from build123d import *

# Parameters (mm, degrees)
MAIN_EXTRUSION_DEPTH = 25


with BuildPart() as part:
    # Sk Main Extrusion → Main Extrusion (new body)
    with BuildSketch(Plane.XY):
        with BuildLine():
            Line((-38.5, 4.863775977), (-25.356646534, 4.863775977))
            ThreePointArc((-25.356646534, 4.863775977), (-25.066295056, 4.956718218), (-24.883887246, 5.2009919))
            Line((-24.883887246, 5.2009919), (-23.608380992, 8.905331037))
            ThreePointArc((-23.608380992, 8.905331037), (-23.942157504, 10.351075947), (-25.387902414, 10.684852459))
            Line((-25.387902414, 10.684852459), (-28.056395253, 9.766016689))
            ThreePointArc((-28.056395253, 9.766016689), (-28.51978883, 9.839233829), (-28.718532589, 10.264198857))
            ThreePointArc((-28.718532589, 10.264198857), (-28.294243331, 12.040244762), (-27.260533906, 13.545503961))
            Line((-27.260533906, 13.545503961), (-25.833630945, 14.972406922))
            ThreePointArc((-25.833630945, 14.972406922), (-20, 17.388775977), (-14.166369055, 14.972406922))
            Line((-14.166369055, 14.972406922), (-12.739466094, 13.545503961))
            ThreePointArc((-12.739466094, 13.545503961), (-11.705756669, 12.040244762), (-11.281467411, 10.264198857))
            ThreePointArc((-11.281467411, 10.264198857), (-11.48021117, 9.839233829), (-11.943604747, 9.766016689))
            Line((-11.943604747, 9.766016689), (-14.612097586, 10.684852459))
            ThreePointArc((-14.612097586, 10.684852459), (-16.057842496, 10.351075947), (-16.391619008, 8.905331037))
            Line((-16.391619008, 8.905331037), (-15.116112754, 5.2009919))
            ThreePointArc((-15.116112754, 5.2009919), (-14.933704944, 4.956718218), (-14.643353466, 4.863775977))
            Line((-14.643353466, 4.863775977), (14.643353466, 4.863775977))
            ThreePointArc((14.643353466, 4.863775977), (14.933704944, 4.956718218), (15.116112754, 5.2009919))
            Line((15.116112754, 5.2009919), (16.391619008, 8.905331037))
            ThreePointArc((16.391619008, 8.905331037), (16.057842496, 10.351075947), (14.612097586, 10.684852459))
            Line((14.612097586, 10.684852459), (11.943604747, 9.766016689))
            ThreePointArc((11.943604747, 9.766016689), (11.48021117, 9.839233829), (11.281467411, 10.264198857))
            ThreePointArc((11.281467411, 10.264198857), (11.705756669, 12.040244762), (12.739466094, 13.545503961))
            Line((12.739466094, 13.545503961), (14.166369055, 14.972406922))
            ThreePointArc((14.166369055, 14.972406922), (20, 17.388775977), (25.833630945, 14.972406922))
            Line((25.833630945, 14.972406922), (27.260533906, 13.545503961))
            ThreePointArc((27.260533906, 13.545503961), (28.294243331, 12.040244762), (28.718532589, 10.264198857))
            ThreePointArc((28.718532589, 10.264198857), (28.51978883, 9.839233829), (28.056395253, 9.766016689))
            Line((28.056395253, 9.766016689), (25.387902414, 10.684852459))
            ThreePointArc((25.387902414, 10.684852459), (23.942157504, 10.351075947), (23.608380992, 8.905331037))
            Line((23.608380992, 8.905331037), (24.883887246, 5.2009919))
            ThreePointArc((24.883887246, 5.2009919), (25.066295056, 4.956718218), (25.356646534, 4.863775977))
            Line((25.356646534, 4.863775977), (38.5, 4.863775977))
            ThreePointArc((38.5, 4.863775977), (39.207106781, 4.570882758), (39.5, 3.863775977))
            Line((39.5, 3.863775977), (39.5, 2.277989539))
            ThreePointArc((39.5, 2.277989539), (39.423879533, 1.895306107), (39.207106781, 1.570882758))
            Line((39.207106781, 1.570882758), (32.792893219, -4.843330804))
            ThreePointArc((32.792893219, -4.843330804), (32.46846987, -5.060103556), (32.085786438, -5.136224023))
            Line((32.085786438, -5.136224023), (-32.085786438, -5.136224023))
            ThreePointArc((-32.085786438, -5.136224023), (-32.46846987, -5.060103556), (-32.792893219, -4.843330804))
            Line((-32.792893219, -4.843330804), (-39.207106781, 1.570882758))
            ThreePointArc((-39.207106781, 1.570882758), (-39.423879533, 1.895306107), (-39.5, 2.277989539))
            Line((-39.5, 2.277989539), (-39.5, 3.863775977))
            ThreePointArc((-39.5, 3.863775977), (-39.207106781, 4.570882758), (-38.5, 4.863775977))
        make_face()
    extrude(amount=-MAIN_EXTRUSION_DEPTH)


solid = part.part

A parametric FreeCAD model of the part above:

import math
import FreeCAD as App
import Part
import Sketcher

V = App.Vector
Q = App.Units.Quantity

doc = App.newDocument("Part")
body = doc.addObject("PartDesign::Body", "Body")

# Sketch on XY plane
sketch1 = body.newObject("Sketcher::SketchObject", "Sketch")
sketch1.AttachmentSupport = (doc.getObject("XY_Plane"), [""])
sketch1.MapMode = "FlatFace"
sketch1.addGeometry(Part.LineSegment(V(-25.4, 4.9, 0), V(-38.5, 4.9, 0)), False)
sketch1.addGeometry(Part.ArcOfCircle(Part.Circle(V(-38.5, 3.9, 0), V(0, 0, 1), 1), math.radians(90), math.radians(180)), False)
sketch1.addGeometry(Part.LineSegment(V(-39.5, 3.9, 0), V(-39.5, 2.3, 0)), False)
sketch1.addGeometry(Part.ArcOfCircle(Part.Circle(V(-38.5, 2.3, 0), V(0, 0, 1), 1), math.radians(180), math.radians(225)), False)
sketch1.addGeometry(Part.LineSegment(V(-39.2, 1.6, 0), V(-32.8, -4.8, 0)), False)
sketch1.addGeometry(Part.ArcOfCircle(Part.Circle(V(-32.1, -4.1, 0), V(0, 0, 1), 1), math.radians(-135), math.radians(-90)), False)
sketch1.addGeometry(Part.LineSegment(V(-32.1, -5.1, 0), V(32.1, -5.1, 0)), False)
sketch1.addGeometry(Part.ArcOfCircle(Part.Circle(V(32.1, -4.1, 0), V(0, 0, 1), 1), math.radians(-90), math.radians(-45)), False)
sketch1.addGeometry(Part.LineSegment(V(32.8, -4.8, 0), V(39.2, 1.6, 0)), False)
sketch1.addGeometry(Part.ArcOfCircle(Part.Circle(V(38.5, 2.3, 0), V(0, 0, 1), 1), math.radians(-45), math.radians(0)), False)
sketch1.addGeometry(Part.LineSegment(V(39.5, 2.3, 0), V(39.5, 3.9, 0)), False)
sketch1.addGeometry(Part.ArcOfCircle(Part.Circle(V(38.5, 3.9, 0), V(0, 0, 1), 1), math.radians(0), math.radians(90)), False)
sketch1.addGeometry(Part.LineSegment(V(38.5, 4.9, 0), V(25.4, 4.9, 0)), False)
sketch1.addGeometry(Part.ArcOfCircle(Part.Circle(V(25.4, 5.4, 0), V(0, 0, 1), 0.5), math.radians(-161), math.radians(-90)), False)
sketch1.addGeometry(Part.LineSegment(V(24.9, 5.2, 0), V(23.6, 8.9, 0)), False)
sketch1.addGeometry(Part.ArcOfCircle(Part.Circle(V(24.9, 9.4, 0), V(0, 0, 1), 1.4), math.radians(71), math.radians(199)), False)
sketch1.addGeometry(Part.LineSegment(V(25.4, 10.7, 0), V(28.1, 9.8, 0)), False)
sketch1.addGeometry(Part.ArcOfCircle(Part.Circle(V(28.2, 10.2, 0), V(0, 0, 1), 0.5), math.radians(-109), math.radians(3)), False)
sketch1.addGeometry(Part.ArcOfCircle(Part.Circle(V(23.7, 10, 0), V(0, 0, 1), 5), math.radians(3), math.radians(45)), False)
sketch1.addGeometry(Part.LineSegment(V(27.3, 13.5, 0), V(25.8, 15, 0)), False)
sketch1.addGeometry(Part.ArcOfCircle(Part.Circle(V(20, 9.1, 0), V(0, 0, 1), 8.3), math.radians(45), math.radians(135)), False)
sketch1.addGeometry(Part.LineSegment(V(14.2, 15, 0), V(12.7, 13.5, 0)), False)
sketch1.addGeometry(Part.ArcOfCircle(Part.Circle(V(16.3, 10, 0), V(0, 0, 1), 5), math.radians(135), math.radians(177)), False)
sketch1.addGeometry(Part.ArcOfCircle(Part.Circle(V(11.8, 10.2, 0), V(0, 0, 1), 0.5), math.radians(177), math.radians(289)), False)
sketch1.addGeometry(Part.LineSegment(V(11.9, 9.8, 0), V(14.6, 10.7, 0)), False)
sketch1.addGeometry(Part.ArcOfCircle(Part.Circle(V(15.1, 9.4, 0), V(0, 0, 1), 1.4), math.radians(-19), math.radians(109)), False)
sketch1.addGeometry(Part.LineSegment(V(16.4, 8.9, 0), V(15.1, 5.2, 0)), False)
sketch1.addGeometry(Part.ArcOfCircle(Part.Circle(V(14.6, 5.4, 0), V(0, 0, 1), 0.5), math.radians(-90), math.radians(-19)), False)
sketch1.addGeometry(Part.LineSegment(V(14.6, 4.9, 0), V(-14.6, 4.9, 0)), False)
sketch1.addGeometry(Part.ArcOfCircle(Part.Circle(V(-14.6, 5.4, 0), V(0, 0, 1), 0.5), math.radians(-161), math.radians(-90)), False)
sketch1.addGeometry(Part.LineSegment(V(-15.1, 5.2, 0), V(-16.4, 8.9, 0)), False)
sketch1.addGeometry(Part.ArcOfCircle(Part.Circle(V(-15.1, 9.4, 0), V(0, 0, 1), 1.4), math.radians(71), math.radians(199)), False)
sketch1.addGeometry(Part.LineSegment(V(-14.6, 10.7, 0), V(-11.9, 9.8, 0)), False)
sketch1.addGeometry(Part.ArcOfCircle(Part.Circle(V(-11.8, 10.2, 0), V(0, 0, 1), 0.5), math.radians(-109), math.radians(3)), False)
sketch1.addGeometry(Part.ArcOfCircle(Part.Circle(V(-16.3, 10, 0), V(0, 0, 1), 5), math.radians(3), math.radians(45)), False)
sketch1.addGeometry(Part.LineSegment(V(-12.7, 13.5, 0), V(-14.2, 15, 0)), False)
sketch1.addGeometry(Part.ArcOfCircle(Part.Circle(V(-20, 9.1, 0), V(0, 0, 1), 8.3), math.radians(45), math.radians(135)), False)
sketch1.addGeometry(Part.LineSegment(V(-25.8, 15, 0), V(-27.3, 13.5, 0)), False)
sketch1.addGeometry(Part.ArcOfCircle(Part.Circle(V(-23.7, 10, 0), V(0, 0, 1), 5), math.radians(135), math.radians(177)), False)
sketch1.addGeometry(Part.ArcOfCircle(Part.Circle(V(-28.2, 10.2, 0), V(0, 0, 1), 0.5), math.radians(177), math.radians(289)), False)
sketch1.addGeometry(Part.LineSegment(V(-28.1, 9.8, 0), V(-25.4, 10.7, 0)), False)
sketch1.addGeometry(Part.ArcOfCircle(Part.Circle(V(-24.9, 9.4, 0), V(0, 0, 1), 1.4), math.radians(-19), math.radians(109)), False)
sketch1.addGeometry(Part.LineSegment(V(-23.6, 8.9, 0), V(-24.9, 5.2, 0)), False)
sketch1.addGeometry(Part.ArcOfCircle(Part.Circle(V(-25.4, 5.4, 0), V(0, 0, 1), 0.5), math.radians(-90), math.radians(-19)), False)
sketch1.addConstraint(Sketcher.Constraint("Tangent", 0, 2, 1, 1))
sketch1.addConstraint(Sketcher.Constraint("Tangent", 1, 2, 2, 1))
sketch1.addConstraint(Sketcher.Constraint("Tangent", 2, 2, 3, 1))
sketch1.addConstraint(Sketcher.Constraint("Tangent", 3, 2, 4, 1))
sketch1.addConstraint(Sketcher.Constraint("Tangent", 4, 2, 5, 1))
sketch1.addConstraint(Sketcher.Constraint("Tangent", 5, 2, 6, 1))
sketch1.addConstraint(Sketcher.Constraint("Tangent", 6, 2, 7, 1))
sketch1.addConstraint(Sketcher.Constraint("Tangent", 7, 2, 8, 1))
sketch1.addConstraint(Sketcher.Constraint("Tangent", 8, 2, 9, 1))
sketch1.addConstraint(Sketcher.Constraint("Tangent", 9, 2, 10, 1))
sketch1.addConstraint(Sketcher.Constraint("Tangent", 10, 2, 11, 1))
sketch1.addConstraint(Sketcher.Constraint("Tangent", 11, 2, 12, 1))
sketch1.addConstraint(Sketcher.Constraint("Tangent", 12, 2, 13, 2))
sketch1.addConstraint(Sketcher.Constraint("Tangent", 13, 1, 14, 1))
sketch1.addConstraint(Sketcher.Constraint("Tangent", 14, 2, 15, 2))
sketch1.addConstraint(Sketcher.Constraint("Tangent", 15, 1, 16, 1))
sketch1.addConstraint(Sketcher.Constraint("Tangent", 16, 2, 17, 1))
sketch1.addConstraint(Sketcher.Constraint("Tangent", 17, 2, 18, 1))
sketch1.addConstraint(Sketcher.Constraint("Tangent", 18, 2, 19, 1))
sketch1.addConstraint(Sketcher.Constraint("Tangent", 19, 2, 20, 1))
sketch1.addConstraint(Sketcher.Constraint("Tangent", 20, 2, 21, 1))
sketch1.addConstraint(Sketcher.Constraint("Tangent", 21, 2, 22, 1))
sketch1.addConstraint(Sketcher.Constraint("Tangent", 22, 2, 23, 1))
sketch1.addConstraint(Sketcher.Constraint("Tangent", 23, 2, 24, 1))
sketch1.addConstraint(Sketcher.Constraint("Tangent", 24, 2, 25, 2))
sketch1.addConstraint(Sketcher.Constraint("Tangent", 25, 1, 26, 1))
sketch1.addConstraint(Sketcher.Constraint("Tangent", 26, 2, 27, 2))
sketch1.addConstraint(Sketcher.Constraint("Tangent", 27, 1, 28, 1))
sketch1.addConstraint(Sketcher.Constraint("Tangent", 28, 2, 29, 2))
sketch1.addConstraint(Sketcher.Constraint("Tangent", 29, 1, 30, 1))
sketch1.addConstraint(Sketcher.Constraint("Tangent", 30, 2, 31, 2))
sketch1.addConstraint(Sketcher.Constraint("Tangent", 31, 1, 32, 1))
sketch1.addConstraint(Sketcher.Constraint("Tangent", 32, 2, 33, 1))
sketch1.addConstraint(Sketcher.Constraint("Tangent", 33, 2, 34, 1))
sketch1.addConstraint(Sketcher.Constraint("Tangent", 34, 2, 35, 1))
sketch1.addConstraint(Sketcher.Constraint("Tangent", 35, 2, 36, 1))
sketch1.addConstraint(Sketcher.Constraint("Tangent", 36, 2, 37, 1))
sketch1.addConstraint(Sketcher.Constraint("Tangent", 37, 2, 38, 1))
sketch1.addConstraint(Sketcher.Constraint("Tangent", 38, 2, 39, 1))
sketch1.addConstraint(Sketcher.Constraint("Tangent", 39, 2, 40, 1))
sketch1.addConstraint(Sketcher.Constraint("Tangent", 40, 2, 41, 2))
sketch1.addConstraint(Sketcher.Constraint("Tangent", 41, 1, 42, 1))
sketch1.addConstraint(Sketcher.Constraint("Tangent", 42, 2, 43, 2))
sketch1.addConstraint(Sketcher.Constraint("Tangent", 43, 1, 0, 1))
sketch1.addConstraint(Sketcher.Constraint("Horizontal", 0))
sketch1.addConstraint(Sketcher.Constraint("Vertical", 2))
sketch1.addConstraint(Sketcher.Constraint("Horizontal", 6))
sketch1.addConstraint(Sketcher.Constraint("Vertical", 10))
sketch1.addConstraint(Sketcher.Constraint("Horizontal", 12))
sketch1.addConstraint(Sketcher.Constraint("Horizontal", 28))
sketch1.addConstraint(Sketcher.Constraint("Equal", 1, 3))
sketch1.addConstraint(Sketcher.Constraint("Equal", 3, 5))
sketch1.addConstraint(Sketcher.Constraint("Equal", 5, 7))
sketch1.addConstraint(Sketcher.Constraint("Equal", 7, 9))
sketch1.addConstraint(Sketcher.Constraint("Equal", 9, 11))
sketch1.addConstraint(Sketcher.Constraint("Equal", 13, 17))
sketch1.addConstraint(Sketcher.Constraint("Equal", 18, 22))
sketch1.addConstraint(Sketcher.Constraint("Equal", 17, 23))
sketch1.addConstraint(Sketcher.Constraint("Equal", 15, 25))
sketch1.addConstraint(Sketcher.Constraint("Equal", 23, 27))
sketch1.addConstraint(Sketcher.Constraint("Equal", 27, 29))
sketch1.addConstraint(Sketcher.Constraint("Equal", 25, 31))
sketch1.addConstraint(Sketcher.Constraint("Equal", 29, 33))
sketch1.addConstraint(Sketcher.Constraint("Equal", 22, 34))
sketch1.addConstraint(Sketcher.Constraint("Equal", 20, 36))
sketch1.addConstraint(Sketcher.Constraint("Equal", 34, 38))
sketch1.addConstraint(Sketcher.Constraint("Equal", 33, 39))
sketch1.addConstraint(Sketcher.Constraint("Equal", 31, 41))
sketch1.addConstraint(Sketcher.Constraint("Equal", 39, 43))
sketch1.addConstraint(Sketcher.Constraint("Symmetric", 3, 3, 9, 3, -2))
sketch1.addConstraint(Sketcher.Constraint("Symmetric", 25, 3, 31, 3, -2))
sketch1.addConstraint(Sketcher.Constraint("Symmetric", 23, 3, 33, 3, -2))
sketch1.addConstraint(Sketcher.Constraint("Symmetric", 20, 3, 36, 3, -2))
sketch1.addConstraint(Sketcher.Constraint("Symmetric", 18, 3, 38, 3, -2))
sketch1.addConstraint(Sketcher.Constraint("Symmetric", 15, 3, 41, 3, -2))
sketch1.addConstraint(Sketcher.Constraint("Symmetric", 13, 3, 43, 3, -2))
sketch1.addConstraint(Sketcher.Constraint("Perpendicular", 4, 8))
sketch1.addConstraint(Sketcher.Constraint("Perpendicular", 8, 19))
sketch1.addConstraint(Sketcher.Constraint("Perpendicular", 19, 21))
sketch1.addConstraint(Sketcher.Constraint("Perpendicular", 14, 24))
sketch1.addConstraint(Sketcher.Constraint("Perpendicular", 16, 26))
sketch1.addConstraint(Sketcher.Constraint("Perpendicular", 24, 30))
sketch1.addConstraint(Sketcher.Constraint("Perpendicular", 26, 32))
sketch1.addConstraint(Sketcher.Constraint("Perpendicular", 21, 35))
sketch1.addConstraint(Sketcher.Constraint("Perpendicular", 35, 37))
sketch1.addConstraint(Sketcher.Constraint("Perpendicular", 30, 40))
sketch1.addConstraint(Sketcher.Constraint("Horizontal", 18, 3, 22, 3))
sketch1.addConstraint(Sketcher.Constraint("Horizontal", 17, 3, 23, 3))
sketch1.addConstraint(Sketcher.Constraint("Horizontal", 15, 3, 25, 3))
sketch1.addConstraint(Sketcher.Constraint("Horizontal", 13, 3, 27, 3))
sketch1.addConstraint(Sketcher.Constraint("Radius", 1, Q("1 mm")))
sketch1.addConstraint(Sketcher.Constraint("Radius", 18, Q("5 mm")))
sketch1.addConstraint(Sketcher.Constraint("Radius", 13, Q("0.5 mm")))
sketch1.addConstraint(Sketcher.Constraint("Radius", 15, Q("1.4 mm")))
sketch1.addConstraint(Sketcher.Constraint("Angle", 14, Q("109 deg")))
sketch1.addConstraint(Sketcher.Constraint("Radius", 20, Q("8.25 mm")))
sketch1.addConstraint(Sketcher.Constraint("DistanceX", -1, 1, 20, 3, Q("20 mm")))
sketch1.addConstraint(Sketcher.Constraint("DistanceX", 1, 3, -1, 1, Q("38.5 mm")))
sketch1.addConstraint(Sketcher.Constraint("DistanceX", -1, 1, 18, 3, Q("23.725 mm")))
sketch1.addConstraint(Sketcher.Constraint("DistanceY", -1, 1, 17, 2, Q("10.264199 mm")))
sketch1.addConstraint(Sketcher.Constraint("DistanceX", 0, 2, 0, 1, Q("13.143353 mm")))
sketch1.addConstraint(Sketcher.Constraint("DistanceX", 6, 1, 6, 2, Q("64.171573 mm")))
sketch1.addConstraint(Sketcher.Constraint("DistanceY", 2, 2, 2, 1, Q("1.585786 mm")))
sketch1.addConstraint(Sketcher.Constraint("DistanceY", -1, 1, 3, 3, Q("2.27799 mm")))
sketch1.addConstraint(Sketcher.Constraint("DistanceX", -1, 1, 17, 3, Q("28.219179 mm")))
pad1 = body.newObject("PartDesign::Pad", "Pad")
pad1.Profile = sketch1
pad1.Length = 25
pad1.Reversed = True

doc.recompute()
